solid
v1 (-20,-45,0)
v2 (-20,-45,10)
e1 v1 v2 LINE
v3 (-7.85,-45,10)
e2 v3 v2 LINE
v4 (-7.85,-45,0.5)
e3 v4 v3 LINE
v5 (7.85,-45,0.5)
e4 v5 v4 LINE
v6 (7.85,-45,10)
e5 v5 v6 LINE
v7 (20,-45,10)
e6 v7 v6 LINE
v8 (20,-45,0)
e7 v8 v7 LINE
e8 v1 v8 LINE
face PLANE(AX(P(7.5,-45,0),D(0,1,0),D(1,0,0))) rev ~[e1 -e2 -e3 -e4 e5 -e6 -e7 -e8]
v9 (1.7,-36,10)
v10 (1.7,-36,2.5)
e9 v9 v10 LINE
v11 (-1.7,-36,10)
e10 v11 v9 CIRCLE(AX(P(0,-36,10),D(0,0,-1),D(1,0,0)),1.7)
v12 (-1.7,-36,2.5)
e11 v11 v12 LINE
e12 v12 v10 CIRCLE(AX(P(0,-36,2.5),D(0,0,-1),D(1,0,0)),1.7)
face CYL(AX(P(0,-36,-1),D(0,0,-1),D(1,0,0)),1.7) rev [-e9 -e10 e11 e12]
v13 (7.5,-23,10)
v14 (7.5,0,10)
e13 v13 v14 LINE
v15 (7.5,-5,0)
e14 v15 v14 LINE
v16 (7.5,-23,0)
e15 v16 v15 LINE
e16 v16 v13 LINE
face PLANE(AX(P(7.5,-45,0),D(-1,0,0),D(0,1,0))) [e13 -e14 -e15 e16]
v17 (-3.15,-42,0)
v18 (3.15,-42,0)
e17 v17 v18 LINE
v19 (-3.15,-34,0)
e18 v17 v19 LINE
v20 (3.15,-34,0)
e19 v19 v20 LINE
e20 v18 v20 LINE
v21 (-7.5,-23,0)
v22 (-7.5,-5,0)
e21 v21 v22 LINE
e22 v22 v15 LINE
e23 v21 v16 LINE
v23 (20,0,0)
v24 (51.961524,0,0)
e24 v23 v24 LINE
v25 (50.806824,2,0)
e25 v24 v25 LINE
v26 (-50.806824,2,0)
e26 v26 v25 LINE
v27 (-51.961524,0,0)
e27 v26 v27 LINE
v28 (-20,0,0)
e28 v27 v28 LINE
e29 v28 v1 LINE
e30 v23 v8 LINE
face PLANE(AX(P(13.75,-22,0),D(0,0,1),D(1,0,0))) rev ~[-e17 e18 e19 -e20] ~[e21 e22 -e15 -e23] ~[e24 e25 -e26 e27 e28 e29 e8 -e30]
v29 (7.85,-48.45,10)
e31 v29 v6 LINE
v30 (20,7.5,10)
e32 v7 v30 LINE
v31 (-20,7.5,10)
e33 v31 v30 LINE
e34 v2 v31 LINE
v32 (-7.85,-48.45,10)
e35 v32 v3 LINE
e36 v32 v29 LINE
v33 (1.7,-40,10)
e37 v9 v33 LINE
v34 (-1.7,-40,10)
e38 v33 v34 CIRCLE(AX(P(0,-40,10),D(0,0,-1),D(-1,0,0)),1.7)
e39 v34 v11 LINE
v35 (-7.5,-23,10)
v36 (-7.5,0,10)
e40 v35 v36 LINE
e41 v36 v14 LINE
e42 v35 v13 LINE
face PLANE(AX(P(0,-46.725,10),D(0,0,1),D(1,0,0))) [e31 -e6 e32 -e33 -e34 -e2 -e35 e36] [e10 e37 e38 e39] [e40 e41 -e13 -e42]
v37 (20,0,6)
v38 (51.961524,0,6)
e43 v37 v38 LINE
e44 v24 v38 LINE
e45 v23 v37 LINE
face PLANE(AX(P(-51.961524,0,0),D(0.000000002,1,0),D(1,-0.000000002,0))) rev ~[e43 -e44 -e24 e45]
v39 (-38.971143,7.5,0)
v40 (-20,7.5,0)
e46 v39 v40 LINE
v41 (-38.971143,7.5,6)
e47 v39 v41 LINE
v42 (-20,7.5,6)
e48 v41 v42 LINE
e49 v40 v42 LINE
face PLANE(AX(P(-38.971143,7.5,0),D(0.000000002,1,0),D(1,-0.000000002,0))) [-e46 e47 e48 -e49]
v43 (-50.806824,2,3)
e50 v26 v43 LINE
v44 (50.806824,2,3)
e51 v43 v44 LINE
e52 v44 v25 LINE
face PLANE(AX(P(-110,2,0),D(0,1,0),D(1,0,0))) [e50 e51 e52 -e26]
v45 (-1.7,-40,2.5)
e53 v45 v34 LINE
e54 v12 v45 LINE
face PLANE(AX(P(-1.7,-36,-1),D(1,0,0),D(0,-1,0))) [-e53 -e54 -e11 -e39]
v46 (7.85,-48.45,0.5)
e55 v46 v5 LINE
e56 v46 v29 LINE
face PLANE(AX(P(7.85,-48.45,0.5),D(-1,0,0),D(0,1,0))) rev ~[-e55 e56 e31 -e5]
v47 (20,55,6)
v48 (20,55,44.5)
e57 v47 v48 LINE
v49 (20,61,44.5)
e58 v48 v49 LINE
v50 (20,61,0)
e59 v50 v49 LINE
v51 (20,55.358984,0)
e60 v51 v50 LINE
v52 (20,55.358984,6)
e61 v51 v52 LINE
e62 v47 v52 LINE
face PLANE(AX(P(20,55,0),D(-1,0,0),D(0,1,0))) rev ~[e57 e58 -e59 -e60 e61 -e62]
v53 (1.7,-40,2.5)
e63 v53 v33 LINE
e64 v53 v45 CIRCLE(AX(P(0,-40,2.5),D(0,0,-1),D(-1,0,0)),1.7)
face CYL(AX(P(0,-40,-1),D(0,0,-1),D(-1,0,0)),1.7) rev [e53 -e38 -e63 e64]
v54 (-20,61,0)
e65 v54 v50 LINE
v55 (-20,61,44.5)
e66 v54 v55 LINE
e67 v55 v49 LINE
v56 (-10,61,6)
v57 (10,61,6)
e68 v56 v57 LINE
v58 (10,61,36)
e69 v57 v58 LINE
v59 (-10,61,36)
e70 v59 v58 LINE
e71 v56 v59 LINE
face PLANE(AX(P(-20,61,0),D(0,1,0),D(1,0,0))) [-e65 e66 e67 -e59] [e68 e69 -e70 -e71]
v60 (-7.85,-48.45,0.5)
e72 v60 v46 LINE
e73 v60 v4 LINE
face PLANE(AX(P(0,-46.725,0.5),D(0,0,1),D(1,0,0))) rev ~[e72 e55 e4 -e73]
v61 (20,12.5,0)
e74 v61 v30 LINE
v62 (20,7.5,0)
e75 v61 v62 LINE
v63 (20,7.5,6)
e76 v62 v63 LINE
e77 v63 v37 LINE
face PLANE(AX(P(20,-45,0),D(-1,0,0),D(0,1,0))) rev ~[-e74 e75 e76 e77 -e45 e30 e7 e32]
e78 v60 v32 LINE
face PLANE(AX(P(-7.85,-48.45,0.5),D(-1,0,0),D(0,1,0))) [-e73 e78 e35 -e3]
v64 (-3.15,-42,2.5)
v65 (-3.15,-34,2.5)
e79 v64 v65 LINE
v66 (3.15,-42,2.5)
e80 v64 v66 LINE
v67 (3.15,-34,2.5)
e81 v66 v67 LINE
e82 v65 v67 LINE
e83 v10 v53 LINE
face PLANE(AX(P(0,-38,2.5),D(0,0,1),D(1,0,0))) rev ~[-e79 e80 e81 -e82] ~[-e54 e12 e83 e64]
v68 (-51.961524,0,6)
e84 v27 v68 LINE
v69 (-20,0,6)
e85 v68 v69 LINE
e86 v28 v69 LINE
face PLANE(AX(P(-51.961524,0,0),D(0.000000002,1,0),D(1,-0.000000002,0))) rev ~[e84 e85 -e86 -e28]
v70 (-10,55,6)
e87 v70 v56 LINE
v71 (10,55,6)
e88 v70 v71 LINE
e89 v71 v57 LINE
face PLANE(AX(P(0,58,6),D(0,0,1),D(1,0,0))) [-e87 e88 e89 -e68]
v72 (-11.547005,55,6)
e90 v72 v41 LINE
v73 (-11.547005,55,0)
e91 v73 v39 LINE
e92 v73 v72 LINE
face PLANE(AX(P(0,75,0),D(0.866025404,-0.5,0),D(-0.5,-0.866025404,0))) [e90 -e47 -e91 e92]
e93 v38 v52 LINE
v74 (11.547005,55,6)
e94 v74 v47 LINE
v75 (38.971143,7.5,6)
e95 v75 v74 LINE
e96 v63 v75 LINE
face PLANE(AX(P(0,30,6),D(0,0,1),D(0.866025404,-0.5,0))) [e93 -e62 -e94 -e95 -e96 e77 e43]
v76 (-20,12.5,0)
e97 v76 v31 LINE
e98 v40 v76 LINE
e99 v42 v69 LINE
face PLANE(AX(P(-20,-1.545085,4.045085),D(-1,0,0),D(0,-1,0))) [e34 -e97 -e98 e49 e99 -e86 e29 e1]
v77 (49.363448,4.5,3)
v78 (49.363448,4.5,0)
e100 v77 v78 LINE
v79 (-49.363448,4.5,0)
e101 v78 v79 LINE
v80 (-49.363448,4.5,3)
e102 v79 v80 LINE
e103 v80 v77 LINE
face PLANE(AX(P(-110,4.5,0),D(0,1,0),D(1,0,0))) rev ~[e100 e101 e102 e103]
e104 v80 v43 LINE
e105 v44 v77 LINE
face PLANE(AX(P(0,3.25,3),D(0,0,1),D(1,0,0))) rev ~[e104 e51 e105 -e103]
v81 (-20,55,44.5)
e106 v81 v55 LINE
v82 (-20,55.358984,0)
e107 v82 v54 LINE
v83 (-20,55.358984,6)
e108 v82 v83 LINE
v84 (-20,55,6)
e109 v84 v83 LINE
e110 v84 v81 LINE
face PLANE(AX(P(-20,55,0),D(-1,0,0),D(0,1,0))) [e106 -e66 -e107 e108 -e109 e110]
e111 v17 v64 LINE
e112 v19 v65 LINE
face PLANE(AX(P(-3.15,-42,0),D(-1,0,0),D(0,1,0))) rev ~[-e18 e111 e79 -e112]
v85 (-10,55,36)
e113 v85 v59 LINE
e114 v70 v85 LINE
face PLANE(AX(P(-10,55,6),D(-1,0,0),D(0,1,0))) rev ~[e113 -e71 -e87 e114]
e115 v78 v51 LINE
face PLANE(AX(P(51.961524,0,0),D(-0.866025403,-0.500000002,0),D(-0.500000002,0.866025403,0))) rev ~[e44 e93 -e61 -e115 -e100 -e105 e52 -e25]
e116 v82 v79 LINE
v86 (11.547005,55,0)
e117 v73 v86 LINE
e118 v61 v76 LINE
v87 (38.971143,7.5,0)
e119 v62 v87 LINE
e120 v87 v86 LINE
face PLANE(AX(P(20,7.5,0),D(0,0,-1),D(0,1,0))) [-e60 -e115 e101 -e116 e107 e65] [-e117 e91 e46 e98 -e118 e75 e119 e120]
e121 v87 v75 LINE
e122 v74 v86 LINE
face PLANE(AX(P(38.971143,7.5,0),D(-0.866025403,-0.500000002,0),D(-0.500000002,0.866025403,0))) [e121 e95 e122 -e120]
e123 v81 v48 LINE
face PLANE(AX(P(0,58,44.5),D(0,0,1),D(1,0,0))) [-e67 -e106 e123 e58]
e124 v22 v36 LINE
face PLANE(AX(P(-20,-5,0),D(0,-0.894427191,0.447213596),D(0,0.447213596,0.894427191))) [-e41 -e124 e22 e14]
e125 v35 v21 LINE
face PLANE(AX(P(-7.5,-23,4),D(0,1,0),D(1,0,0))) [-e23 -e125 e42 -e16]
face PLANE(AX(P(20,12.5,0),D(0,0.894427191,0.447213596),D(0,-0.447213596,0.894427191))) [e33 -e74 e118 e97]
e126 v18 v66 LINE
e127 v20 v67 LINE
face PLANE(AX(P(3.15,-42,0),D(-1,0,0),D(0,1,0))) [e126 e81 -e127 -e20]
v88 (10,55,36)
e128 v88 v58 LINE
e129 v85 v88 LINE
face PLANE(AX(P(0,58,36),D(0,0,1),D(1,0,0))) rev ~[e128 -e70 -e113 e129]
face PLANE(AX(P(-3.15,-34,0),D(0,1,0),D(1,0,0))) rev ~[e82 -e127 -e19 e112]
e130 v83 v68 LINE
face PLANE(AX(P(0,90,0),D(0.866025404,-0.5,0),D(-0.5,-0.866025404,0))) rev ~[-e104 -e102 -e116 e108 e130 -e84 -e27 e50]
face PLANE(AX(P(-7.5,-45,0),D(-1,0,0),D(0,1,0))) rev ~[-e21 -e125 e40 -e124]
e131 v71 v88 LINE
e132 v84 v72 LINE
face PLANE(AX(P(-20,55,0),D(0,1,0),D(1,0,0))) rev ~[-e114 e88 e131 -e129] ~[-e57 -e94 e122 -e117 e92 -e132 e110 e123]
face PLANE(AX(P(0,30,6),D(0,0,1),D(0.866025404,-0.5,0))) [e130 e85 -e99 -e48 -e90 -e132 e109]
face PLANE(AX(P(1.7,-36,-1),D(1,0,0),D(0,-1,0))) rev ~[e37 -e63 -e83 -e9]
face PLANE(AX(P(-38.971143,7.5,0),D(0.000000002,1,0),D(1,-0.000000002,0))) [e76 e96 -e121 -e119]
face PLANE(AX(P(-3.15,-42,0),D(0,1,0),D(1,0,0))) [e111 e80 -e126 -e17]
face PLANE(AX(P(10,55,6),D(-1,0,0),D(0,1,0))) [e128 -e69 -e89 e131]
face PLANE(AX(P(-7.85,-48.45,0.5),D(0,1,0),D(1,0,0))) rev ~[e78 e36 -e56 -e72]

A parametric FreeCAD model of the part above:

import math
import FreeCAD as App
import Part
import Sketcher
Q = App.Units.Quantity


def add_polygon(sketch, points):
    """Adds a closed chain of lines whose ends are joined by coincident constraints."""
    first, n = sketch.GeometryCount, len(points)
    for a, b in zip(points, points[1:] + points[:1]):
        sketch.addGeometry(Part.LineSegment(App.Vector(*a, 0), App.Vector(*b, 0)), False)
    for i in range(n):
        sketch.addConstraint(Sketcher.Constraint("Coincident", first + i, 2, first + (i + 1) % n, 1))

doc = App.newDocument("Part")
body = doc.addObject("PartDesign::Body", "Body")

# Sketch on XY plane
sketch1 = doc.addObject("Sketcher::SketchObject", "Sketch")
body.addObject(sketch1)
sketch1.AttachmentSupport = (doc.XY_Plane, [""])
sketch1.MapMode = "FlatFace"
add_polygon(sketch1, [(-110, 4.5), (-110, 2), (110, 2), (110, 4.5)])  # lines 0-3
sketch1.addConstraint(Sketcher.Constraint("Vertical", 0))
sketch1.addConstraint(Sketcher.Constraint("Horizontal", 1))
sketch1.addConstraint(Sketcher.Constraint("Vertical", 2))
sketch1.addConstraint(Sketcher.Constraint("Horizontal", 3))
sketch1.addConstraint(Sketcher.Constraint("DistanceX", 1, 1, 1, 2, 220.0))
sketch1.addConstraint(Sketcher.Constraint("DistanceY", 0, 2, 0, 1, 2.5))
sketch1.addConstraint(Sketcher.Constraint("DistanceX", 0, 2, -1, 1, 110.0))
sketch1.addConstraint(Sketcher.Constraint("DistanceY", -1, 1, 0, 2, 2.0))
pad1 = doc.addObject("PartDesign::Pad", "Pad")
body.addObject(pad1)
pad1.Profile = sketch1
pad1.Length = 3
body2 = doc.addObject("PartDesign::Body", "Body001")

# Sketch on XY plane
sketch2 = doc.addObject("Sketcher::SketchObject", "Sketch001")
body2.addObject(sketch2)
sketch2.AttachmentSupport = (doc.getObject("XY_Plane001"), [""])
sketch2.MapMode = "FlatFace"
add_polygon(sketch2, [(-95, 0), (95, 0), (85, 61), (-85, 61)])  # lines 0-3
sketch2.addConstraint(Sketcher.Constraint("Horizontal", 0))
sketch2.addConstraint(Sketcher.Constraint("Horizontal", 2))
sketch2.addConstraint(Sketcher.Constraint("Symmetric", 0, 2, 3, 2, -1, 1))
sketch2.addConstraint(Sketcher.Constraint("Equal", 1, 3))
sketch2.addConstraint(Sketcher.Constraint("DistanceX", 0, 1, 0, 2, 190.0))
sketch2.addConstraint(Sketcher.Constraint("DistanceX", 2, 2, 2, 1, 170.0))
sketch2.addConstraint(Sketcher.Constraint("DistanceY", -1, 1, 1, 2, 61.0))
pad2 = doc.addObject("PartDesign::Pad", "Pad001")
body2.addObject(pad2)
pad2.Profile = sketch2
pad2.Length = 10
body3 = doc.addObject("PartDesign::Body", "Body002")

# Sketch on XY plane
sketch3 = doc.addObject("Sketcher::SketchObject", "Sketch002")
body3.addObject(sketch3)
sketch3.AttachmentSupport = (doc.getObject("XY_Plane002"), [""])
sketch3.MapMode = "FlatFace"
add_polygon(sketch3, [(-110, 98), (-110, -15), (110, -15), (110, 98)])  # lines 0-3
sketch3.addConstraint(Sketcher.Constraint("Vertical", 0))
sketch3.addConstraint(Sketcher.Constraint("Horizontal", 1))
sketch3.addConstraint(Sketcher.Constraint("Vertical", 2))
sketch3.addConstraint(Sketcher.Constraint("Horizontal", 3))
sketch3.addConstraint(Sketcher.Constraint("DistanceX", 1, 1, 1, 2, 220.0))
sketch3.addConstraint(Sketcher.Constraint("DistanceY", 0, 2, 0, 1, 113.0))
sketch3.addConstraint(Sketcher.Constraint("DistanceX", 0, 2, -1, 1, 110.0))
sketch3.addConstraint(Sketcher.Constraint("DistanceY", 0, 2, -1, 1, 15.0))
pad3 = doc.addObject("PartDesign::Pad", "Pad002")
body3.addObject(pad3)
pad3.Profile = sketch3
pad3.Length = 8
doc.recompute()

boolean = doc.addObject("PartDesign::Boolean", "Boolean")
body3.addObject(boolean)
boolean.Type = "Cut"
boolean.addObjects([body2])
body4 = doc.addObject("PartDesign::Body", "Body003")

# Sketch on XY plane
sketch4 = doc.addObject("Sketcher::SketchObject", "Sketch003")
body4.addObject(sketch4)
sketch4.AttachmentSupport = (doc.getObject("XY_Plane003"), [""])
sketch4.MapMode = "FlatFace"
add_polygon(sketch4, [(-16, 61), (-16, 55), (16, 55), (16, 61)])  # lines 0-3
sketch4.addConstraint(Sketcher.Constraint("Vertical", 0))
sketch4.addConstraint(Sketcher.Constraint("Horizontal", 1))
sketch4.addConstraint(Sketcher.Constraint("Vertical", 2))
sketch4.addConstraint(Sketcher.Constraint("Horizontal", 3))
sketch4.addConstraint(Sketcher.Constraint("DistanceX", 1, 1, 1, 2, 32.0))
sketch4.addConstraint(Sketcher.Constraint("DistanceY", 0, 2, 0, 1, 6.0))
sketch4.addConstraint(Sketcher.Constraint("DistanceX", 0, 2, -1, 1, 16.0))
sketch4.addConstraint(Sketcher.Constraint("DistanceY", -1, 1, 0, 2, 55.0))
pad4 = doc.addObject("PartDesign::Pad", "Pad003")
body4.addObject(pad4)
pad4.Profile = sketch4
pad4.Length = 6
body5 = doc.addObject("PartDesign::Body", "Body004")

# Sketch on XY plane
sketch5 = doc.addObject("Sketcher::SketchObject", "Sketch004")
body5.addObject(sketch5)
sketch5.AttachmentSupport = (doc.getObject("XY_Plane004"), [""])
sketch5.MapMode = "FlatFace"
add_polygon(sketch5, [(45, 0), (-22, 39), (-22, -39)])  # lines 0-2
sketch5.addConstraint(Sketcher.Constraint("Vertical", 1))
sketch5.addConstraint(Sketcher.Constraint("PointOnObject", 2, 2, -1))
sketch5.addConstraint(Sketcher.Constraint("Equal", 0, 2))
sketch5.addConstraint(Sketcher.Constraint("Angle", 0, Q("150 deg")))
sketch5.addConstraint(Sketcher.Constraint("DistanceX", -1, 1, 2, 2, 45.0))
sketch5.addConstraint(Sketcher.Constraint("DistanceX", 0, 2, -1, 1, 22.5))
pad5 = doc.addObject("PartDesign::Pad", "Pad004")
body5.addObject(pad5)
pad5.Profile = sketch5
pad5.Length = 6
body6 = doc.addObject("PartDesign::Body", "Body005")
doc.recompute()

body5.Placement = App.Placement(App.Vector(0, 23, 0), App.Rotation(App.Vector(0, 0, -1), 30))
boolean2 = doc.addObject("PartDesign::Boolean", "Boolean001")
body6.addObject(boolean2)
boolean2.Type = "Fuse"
boolean2.addObjects([body5])
body7 = doc.addObject("PartDesign::Body", "Body006")

# Sketch on XY plane
sketch6 = doc.addObject("Sketcher::SketchObject", "Sketch005")
body7.addObject(sketch6)
sketch6.AttachmentSupport = (doc.getObject("XY_Plane006"), [""])
sketch6.MapMode = "FlatFace"
add_polygon(sketch6, [(60, 0), (-30, 52), (-30, -52)])  # lines 0-2
sketch6.addConstraint(Sketcher.Constraint("Vertical", 1))
sketch6.addConstraint(Sketcher.Constraint("PointOnObject", 2, 2, -1))
sketch6.addConstraint(Sketcher.Constraint("Equal", 0, 2))
sketch6.addConstraint(Sketcher.Constraint("Angle", 0, Q("150 deg")))
sketch6.addConstraint(Sketcher.Constraint("DistanceX", 0, 2, -1, 1, 30.0))
sketch6.addConstraint(Sketcher.Constraint("DistanceX", -1, 1, 2, 2, 60.0))
pad6 = doc.addObject("PartDesign::Pad", "Pad005")
body7.addObject(pad6)
pad6.Profile = sketch6
pad6.Length = 6
body8 = doc.addObject("PartDesign::Body", "Body007")
doc.recompute()

body7.Placement = App.Placement(App.Vector(0, 23, 0), App.Rotation(App.Vector(0, 0, -1), 30))
boolean3 = doc.addObject("PartDesign::Boolean", "Boolean002")
body8.addObject(boolean3)
boolean3.Type = "Fuse"
boolean3.addObjects([body7])
doc.recompute()

boolean4 = doc.addObject("PartDesign::Boolean", "Boolean003")
body8.addObject(boolean4)
boolean4.Type = "Cut"
boolean4.addObjects([body6])
body9 = doc.addObject("PartDesign::Body", "Body008")
doc.recompute()

body8.Placement = App.Placement(App.Vector(0, 7, 0), App.Rotation(App.Vector(0, 0, 1), 0))
boolean5 = doc.addObject("PartDesign::Boolean", "Boolean004")
body9.addObject(boolean5)
boolean5.Type = "Fuse"
boolean5.addObjects([body8])
doc.recompute()

boolean6 = doc.addObject("PartDesign::Boolean", "Boolean005")
body9.addObject(boolean6)
boolean6.Type = "Fuse"
boolean6.addObjects([body4])
doc.recompute()

boolean7 = doc.addObject("PartDesign::Boolean", "Boolean006")
body9.addObject(boolean7)
boolean7.Type = "Cut"
boolean7.addObjects([body3])
doc.recompute()

boolean8 = doc.addObject("PartDesign::Boolean", "Boolean007")
body9.addObject(boolean8)
boolean8.Type = "Cut"
boolean8.addObjects([body])
body10 = doc.addObject("PartDesign::Body", "Body009")

# Sketch on XY plane
sketch7 = doc.addObject("Sketcher::SketchObject", "Sketch006")
body10.addObject(sketch7)
sketch7.AttachmentSupport = (doc.getObject("XY_Plane009"), [""])
sketch7.MapMode = "FlatFace"
add_polygon(sketch7, [(-3, -34), (-3, -42), (3, -42), (3, -34)])  # lines 0-3
sketch7.addConstraint(Sketcher.Constraint("Vertical", 0))
sketch7.addConstraint(Sketcher.Constraint("Horizontal", 1))
sketch7.addConstraint(Sketcher.Constraint("Vertical", 2))
sketch7.addConstraint(Sketcher.Constraint("Horizontal", 3))
sketch7.addConstraint(Sketcher.Constraint("DistanceY", 0, 2, 0, 1, 8.0))
sketch7.addConstraint(Sketcher.Constraint("DistanceX", 1, 1, 1, 2, 6.3))
sketch7.addConstraint(Sketcher.Constraint("DistanceY", 0, 2, -1, 1, 42.0))
sketch7.addConstraint(Sketcher.Constraint("DistanceX", 0, 2, -1, 1, 3.15))
pad7 = doc.addObject("PartDesign::Pad", "Pad006")
body10.addObject(pad7)
pad7.Profile = sketch7
pad7.Length = 2.5
body11 = doc.addObject("PartDesign::Body", "Body010")

# Sketch on XY plane
sketch8 = doc.addObject("Sketcher::SketchObject", "Sketch007")
body11.addObject(sketch8)
sketch8.AttachmentSupport = (doc.getObject("XY_Plane010"), [""])
sketch8.MapMode = "FlatFace"
sketch8.AttachmentOffset = App.Placement(App.Vector(0, 0, 10), App.Rotation())
sketch8.addGeometry(Part.ArcOfCircle(Part.Circle(App.Vector(0, -36, 0), App.Vector(0, 0, 1), 1.7), math.radians(0), math.radians(180)), False)
sketch8.addGeometry(Part.LineSegment(App.Vector(-1.7, -36, 0), App.Vector(-1.7, -40, 0)), False)
sketch8.addGeometry(Part.ArcOfCircle(Part.Circle(App.Vector(0, -40, 0), App.Vector(0, 0, 1), 1.7), math.radians(180), math.radians(360)), False)
sketch8.addGeometry(Part.LineSegment(App.Vector(1.7, -40, 0), App.Vector(1.7, -36, 0)), False)
sketch8.addConstraint(Sketcher.Constraint("Tangent", 0, 2, 1, 1))
sketch8.addConstraint(Sketcher.Constraint("Tangent", 1, 2, 2, 1))
sketch8.addConstraint(Sketcher.Constraint("Tangent", 2, 2, 3, 1))
sketch8.addConstraint(Sketcher.Constraint("Tangent", 3, 2, 0, 1))
sketch8.addConstraint(Sketcher.Constraint("Vertical", 1))
sketch8.addConstraint(Sketcher.Constraint("Vertical", 3))
sketch8.addConstraint(Sketcher.Constraint("PointOnObject", 0, 3, -2))
sketch8.addConstraint(Sketcher.Constraint("Radius", 0, 1.7))
sketch8.addConstraint(Sketcher.Constraint("DistanceY", 1, 2, 1, 1, 4.0))
sketch8.addConstraint(Sketcher.Constraint("DistanceY", 0, 3, -1, 1, 36.0))
pad8 = doc.addObject("PartDesign::Pad", "Pad007")
body11.addObject(pad8)
pad8.Profile = sketch8
pad8.Length = 12
body12 = doc.addObject("PartDesign::Body", "Body011")
doc.recompute()

body11.Placement = App.Placement(App.Vector(0, 0, -11), App.Rotation(App.Vector(0, 0, 1), 0))
boolean9 = doc.addObject("PartDesign::Boolean", "Boolean008")
body12.addObject(boolean9)
boolean9.Type = "Fuse"
boolean9.addObjects([body11])
body13 = doc.addObject("PartDesign::Body", "Body012")

# Sketch on XY plane
sketch9 = doc.addObject("Sketcher::SketchObject", "Sketch008")
body13.addObject(sketch9)
sketch9.AttachmentSupport = (doc.getObject("XY_Plane012"), [""])
sketch9.MapMode = "FlatFace"
sketch9.AttachmentOffset = App.Placement(App.Vector(0, 0, 0.5), App.Rotation())
add_polygon(sketch9, [(-7.8, -45), (-7.8, -48.5), (7.8, -48.5), (7.8, -45)])  # lines 0-3
sketch9.addConstraint(Sketcher.Constraint("Vertical", 0))
sketch9.addConstraint(Sketcher.Constraint("Horizontal", 1))
sketch9.addConstraint(Sketcher.Constraint("Vertical", 2))
sketch9.addConstraint(Sketcher.Constraint("Horizontal", 3))
sketch9.addConstraint(Sketcher.Constraint("DistanceX", 1, 1, 1, 2, 15.7))
sketch9.addConstraint(Sketcher.Constraint("DistanceY", 2, 2, -1, 1, 45.0))
sketch9.addConstraint(Sketcher.Constraint("DistanceY", 0, 2, 0, 1, 3.45))
sketch9.addConstraint(Sketcher.Constraint("DistanceX", 0, 2, -1, 1, 7.85))
pad9 = doc.addObject("PartDesign::Pad", "Pad008")
body13.addObject(pad9)
pad9.Profile = sketch9
pad9.Length = 9.5
body14 = doc.addObject("PartDesign::Body", "Body013")

# Sketch on XY plane
sketch10 = doc.addObject("Sketcher::SketchObject", "Sketch009")
body14.addObject(sketch10)
sketch10.AttachmentSupport = (doc.getObject("XY_Plane013"), [""])
sketch10.MapMode = "FlatFace"
add_polygon(sketch10, [(-8, -23), (-8, -45), (8, -45), (8, -23)])  # lines 0-3
sketch10.addConstraint(Sketcher.Constraint("Vertical", 0))
sketch10.addConstraint(Sketcher.Constraint("Horizontal", 1))
sketch10.addConstraint(Sketcher.Constraint("Vertical", 2))
sketch10.addConstraint(Sketcher.Constraint("Horizontal", 3))
sketch10.addConstraint(Sketcher.Constraint("DistanceX", 1, 1, 1, 2, 15.0))
sketch10.addConstraint(Sketcher.Constraint("DistanceY", 0, 2, 0, 1, 22.0))
sketch10.addConstraint(Sketcher.Constraint("DistanceY", 0, 2, -1, 1, 45.0))
sketch10.addConstraint(Sketcher.Constraint("DistanceX", 0, 2, -1, 1, 7.5))
pad10 = doc.addObject("PartDesign::Pad", "Pad009")
body14.addObject(pad10)
pad10.Profile = sketch10
pad10.Length = 10
doc.recompute()

boolean10 = doc.addObject("PartDesign::Boolean", "Boolean009")
body14.addObject(boolean10)
boolean10.Type = "Fuse"
boolean10.addObjects([body13])
doc.recompute()

boolean11 = doc.addObject("PartDesign::Boolean", "Boolean010")
body14.addObject(boolean11)
boolean11.Type = "Cut"
boolean11.addObjects([body12])
doc.recompute()

boolean12 = doc.addObject("PartDesign::Boolean", "Boolean011")
body14.addObject(boolean12)
boolean12.Type = "Cut"
boolean12.addObjects([body10])
body15 = doc.addObject("PartDesign::Body", "Body014")

# Sketch on XY plane
sketch11 = doc.addObject("Sketcher::SketchObject", "Sketch010")
body15.addObject(sketch11)
sketch11.AttachmentSupport = (doc.getObject("XY_Plane014"), [""])
sketch11.MapMode = "FlatFace"
sketch11.AttachmentOffset = App.Placement(App.Vector(0, 0, 10), App.Rotation())
sketch11.addGeometry(Part.ArcOfCircle(Part.Circle(App.Vector(0, -36, 0), App.Vector(0, 0, 1), 1.7), math.radians(0), math.radians(180)), False)
sketch11.addGeometry(Part.LineSegment(App.Vector(-1.7, -36, 0), App.Vector(-1.7, -40, 0)), False)
sketch11.addGeometry(Part.ArcOfCircle(Part.Circle(App.Vector(0, -40, 0), App.Vector(0, 0, 1), 1.7), math.radians(180), math.radians(360)), False)
sketch11.addGeometry(Part.LineSegment(App.Vector(1.7, -40, 0), App.Vector(1.7, -36, 0)), False)
sketch11.addConstraint(Sketcher.Constraint("Tangent", 0, 2, 1, 1))
sketch11.addConstraint(Sketcher.Constraint("Tangent", 1, 2, 2, 1))
sketch11.addConstraint(Sketcher.Constraint("Tangent", 2, 2, 3, 1))
sketch11.addConstraint(Sketcher.Constraint("Tangent", 3, 2, 0, 1))
sketch11.addConstraint(Sketcher.Constraint("Vertical", 1))
sketch11.addConstraint(Sketcher.Constraint("Vertical", 3))
sketch11.addConstraint(Sketcher.Constraint("PointOnObject", 0, 3, -2))
sketch11.addConstraint(Sketcher.Constraint("Radius", 0, 1.7))
sketch11.addConstraint(Sketcher.Constraint("DistanceY", 1, 2, 1, 1, 4.0))
sketch11.addConstraint(Sketcher.Constraint("DistanceY", 0, 3, -1, 1, 36.0))
pad11 = doc.addObject("PartDesign::Pad", "Pad010")
body15.addObject(pad11)
pad11.Profile = sketch11
pad11.Length = 12
body16 = doc.addObject("PartDesign::Body", "Body015")
doc.recompute()

body15.Placement = App.Placement(App.Vector(0, 0, -11), App.Rotation(App.Vector(0, 0, 1), 0))
boolean13 = doc.addObject("PartDesign::Boolean", "Boolean012")
body16.addObject(boolean13)
boolean13.Type = "Fuse"
boolean13.addObjects([body15])
body17 = doc.addObject("PartDesign::Body", "Body016")

# Sketch on XY plane
sketch12 = doc.addObject("Sketcher::SketchObject", "Sketch011")
body17.addObject(sketch12)
sketch12.AttachmentSupport = (doc.getObject("XY_Plane016"), [""])
sketch12.MapMode = "FlatFace"
add_polygon(sketch12, [(-20, 1), (-20, -45), (-8, -45), (-8, 1)])  # lines 0-3
sketch12.addConstraint(Sketcher.Constraint("Vertical", 0))
sketch12.addConstraint(Sketcher.Constraint("Horizontal", 1))
sketch12.addConstraint(Sketcher.Constraint("Vertical", 2))
sketch12.addConstraint(Sketcher.Constraint("Horizontal", 3))
sketch12.addConstraint(Sketcher.Constraint("DistanceY", 0, 2, 0, 1, 46.0))
sketch12.addConstraint(Sketcher.Constraint("DistanceX", 1, 1, 1, 2, 12.5))
sketch12.addConstraint(Sketcher.Constraint("DistanceX", 0, 2, -1, 1, 20.0))
sketch12.addConstraint(Sketcher.Constraint("DistanceY", 0, 2, -1, 1, 45.0))
pad12 = doc.addObject("PartDesign::Pad", "Pad011")
body17.addObject(pad12)
pad12.Profile = sketch12
pad12.Length = 10
body18 = doc.addObject("PartDesign::Body", "Body017")

# Sketch on XY plane
sketch13 = doc.addObject("Sketcher::SketchObject", "Sketch012")
body18.addObject(sketch13)
sketch13.AttachmentSupport = (doc.getObject("XY_Plane017"), [""])
sketch13.MapMode = "FlatFace"
add_polygon(sketch13, [(-110, 4.5), (-110, 2), (110, 2), (110, 4.5)])  # lines 0-3
sketch13.addConstraint(Sketcher.Constraint("Vertical", 0))
sketch13.addConstraint(Sketcher.Constraint("Horizontal", 1))
sketch13.addConstraint(Sketcher.Constraint("Vertical", 2))
sketch13.addConstraint(Sketcher.Constraint("Horizontal", 3))
sketch13.addConstraint(Sketcher.Constraint("DistanceX", 1, 1, 1, 2, 220.0))
sketch13.addConstraint(Sketcher.Constraint("DistanceY", 0, 2, 0, 1, 2.5))
sketch13.addConstraint(Sketcher.Constraint("DistanceX", 0, 2, -1, 1, 110.0))
sketch13.addConstraint(Sketcher.Constraint("DistanceY", -1, 1, 0, 2, 2.0))
pad13 = doc.addObject("PartDesign::Pad", "Pad012")
body18.addObject(pad13)
pad13.Profile = sketch13
pad13.Length = 3
body19 = doc.addObject("PartDesign::Body", "Body018")

# Sketch on XY plane
sketch14 = doc.addObject("Sketcher::SketchObject", "Sketch013")
body19.addObject(sketch14)
sketch14.AttachmentSupport = (doc.getObject("XY_Plane018"), [""])
sketch14.MapMode = "FlatFace"
add_polygon(sketch14, [(-14, 8), (-14, 0), (16, 0), (16, 8)])  # lines 0-3
sketch14.addConstraint(Sketcher.Constraint("Vertical", 0))
sketch14.addConstraint(Sketcher.Constraint("Horizontal", 1))
sketch14.addConstraint(Sketcher.Constraint("Vertical", 2))
sketch14.addConstraint(Sketcher.Constraint("Horizontal", 3))
sketch14.addConstraint(Sketcher.Constraint("PointOnObject", 0, 2, -1))
sketch14.addConstraint(Sketcher.Constraint("DistanceX", 1, 1, 1, 2, 30.0))
sketch14.addConstraint(Sketcher.Constraint("DistanceY", 0, 2, 0, 1, 7.5))
sketch14.addConstraint(Sketcher.Constraint("DistanceX", 0, 2, -1, 1, 14.0))
pad14 = doc.addObject("PartDesign::Pad", "Pad013")
body19.addObject(pad14)
pad14.Profile = sketch14
pad14.Length = 10
body20 = doc.addObject("PartDesign::Body", "Body019")

# Sketch on XY plane
sketch15 = doc.addObject("Sketcher::SketchObject", "Sketch014")
body20.addObject(sketch15)
sketch15.AttachmentSupport = (doc.getObject("XY_Plane019"), [""])
sketch15.MapMode = "FlatFace"
sketch15.AttachmentOffset = App.Placement(App.Vector(0, 0, -10), App.Rotation())
add_polygon(sketch15, [(-22, 9), (-22, -1), (28, -1), (28, 9)])  # lines 0-3
sketch15.addConstraint(Sketcher.Constraint("Vertical", 0))
sketch15.addConstraint(Sketcher.Constraint("Horizontal", 1))
sketch15.addConstraint(Sketcher.Constraint("Vertical", 2))
sketch15.addConstraint(Sketcher.Constraint("Horizontal", 3))
sketch15.addConstraint(Sketcher.Constraint("DistanceX", 1, 1, 1, 2, 50.0))
sketch15.addConstraint(Sketcher.Constraint("DistanceY", 0, 2, 0, 1, 10.0))
sketch15.addConstraint(Sketcher.Constraint("DistanceX", 0, 2, -1, 1, 22.0))
sketch15.addConstraint(Sketcher.Constraint("DistanceY", 0, 2, -1, 1, 1.0))
pad15 = doc.addObject("PartDesign::Pad", "Pad014")
body20.addObject(pad15)
pad15.Profile = sketch15
pad15.Length = 10
body21 = doc.addObject("PartDesign::Body", "Body020")

# Sketch on XY plane
sketch16 = doc.addObject("Sketcher::SketchObject", "Sketch015")
body21.addObject(sketch16)
sketch16.AttachmentSupport = (doc.getObject("XY_Plane020"), [""])
sketch16.MapMode = "FlatFace"
sketch16.AttachmentOffset = App.Placement(App.Vector(0, 0, 13), App.Rotation())
add_polygon(sketch16, [(8, 8), (8, 0), (20, 0), (20, 8)])  # lines 0-3
sketch16.addConstraint(Sketcher.Constraint("Vertical", 0))
sketch16.addConstraint(Sketcher.Constraint("Horizontal", 1))
sketch16.addConstraint(Sketcher.Constraint("Vertical", 2))
sketch16.addConstraint(Sketcher.Constraint("Horizontal", 3))
sketch16.addConstraint(Sketcher.Constraint("PointOnObject", 0, 2, -1))
sketch16.addConstraint(Sketcher.Constraint("DistanceX", 1, 1, 1, 2, 12.5))
sketch16.addConstraint(Sketcher.Constraint("DistanceY", 0, 2, 0, 1, 7.5))
sketch16.addConstraint(Sketcher.Constraint("DistanceX", -1, 1, 1, 2, 20.0))
pad16 = doc.addObject("PartDesign::Pad", "Pad015")
body21.addObject(pad16)
pad16.Profile = sketch16
pad16.Length = 12
body22 = doc.addObject("PartDesign::Body", "Body021")

# Sketch on XY plane
sketch17 = doc.addObject("Sketcher::SketchObject", "Sketch016")
body22.addObject(sketch17)
sketch17.AttachmentSupport = (doc.getObject("XY_Plane021"), [""])
sketch17.MapMode = "FlatFace"
sketch17.AttachmentOffset = App.Placement(App.Vector(0, 0, 13), App.Rotation())
add_polygon(sketch17, [(-20, 8), (-20, 0), (-8, 0), (-8, 8)])  # lines 0-3
sketch17.addConstraint(Sketcher.Constraint("Vertical", 0))
sketch17.addConstraint(Sketcher.Constraint("Horizontal", 1))
sketch17.addConstraint(Sketcher.Constraint("Vertical", 2))
sketch17.addConstraint(Sketcher.Constraint("Horizontal", 3))
sketch17.addConstraint(Sketcher.Constraint("PointOnObject", 0, 2, -1))
sketch17.addConstraint(Sketcher.Constraint("DistanceX", 1, 1, 1, 2, 12.5))
sketch17.addConstraint(Sketcher.Constraint("DistanceY", 0, 2, 0, 1, 7.5))
sketch17.addConstraint(Sketcher.Constraint("DistanceX", 0, 2, -1, 1, 20.0))
pad17 = doc.addObject("PartDesign::Pad", "Pad016")
body22.addObject(pad17)
pad17.Profile = sketch17
pad17.Length = 12
body23 = doc.addObject("PartDesign::Body", "Body022")

# Sketch on XY plane
sketch18 = doc.addObject("Sketcher::SketchObject", "Sketch017")
body23.addObject(sketch18)
sketch18.AttachmentSupport = (doc.getObject("XY_Plane022"), [""])
sketch18.MapMode = "FlatFace"
sketch18.addGeometry(Part.Circle(App.Vector(0, 7, 0), App.Vector(0, 0, 1), 1.7), False)
sketch18.addConstraint(Sketcher.Constraint("PointOnObject", 0, 3, -2))
sketch18.addConstraint(Sketcher.Constraint("Diameter", 0, 3.4))
sketch18.addConstraint(Sketcher.Constraint("DistanceY", -1, 1, 0, 3, 7.0))
pad18 = doc.addObject("PartDesign::Pad", "Pad017")
body23.addObject(pad18)
pad18.Profile = sketch18
pad18.Length = 30
body24 = doc.addObject("PartDesign::Body", "Body023")

# Sketch on XY plane
sketch19 = doc.addObject("Sketcher::SketchObject", "Sketch018")
body24.addObject(sketch19)
sketch19.AttachmentSupport = (doc.getObject("XY_Plane023"), [""])
sketch19.MapMode = "FlatFace"
sketch19.AttachmentOffset = App.Placement(App.Vector(0, 0, 20), App.Rotation())
add_polygon(sketch19, [(12, 92), (12, 22), (28, 22), (28, 92)])  # lines 0-3
sketch19.addConstraint(Sketcher.Constraint("Vertical", 0))
sketch19.addConstraint(Sketcher.Constraint("Horizontal", 1))
sketch19.addConstraint(Sketcher.Constraint("Vertical", 2))
sketch19.addConstraint(Sketcher.Constraint("Horizontal", 3))
sketch19.addConstraint(Sketcher.Constraint("DistanceX", 1, 1, 1, 2, 15.0))
sketch19.addConstraint(Sketcher.Constraint("DistanceY", 0, 2, 0, 1, 70.0))
sketch19.addConstraint(Sketcher.Constraint("DistanceY", -1, 1, 0, 2, 22.0))
sketch19.addConstraint(Sketcher.Constraint("DistanceX", -1, 1, 0, 2, 12.5))
pad19 = doc.addObject("PartDesign::Pad", "Pad018")
body24.addObject(pad19)
pad19.Profile = sketch19
pad19.Length = 6
body25 = doc.addObject("PartDesign::Body", "Body024")

# Sketch on XY plane
sketch20 = doc.addObject("Sketcher::SketchObject", "Sketch019")
body25.addObject(sketch20)
sketch20.AttachmentSupport = (doc.getObject("XY_Plane024"), [""])
sketch20.MapMode = "FlatFace"
sketch20.AttachmentOffset = App.Placement(App.Vector(0, 0, 20), App.Rotation())
add_polygon(sketch20, [(0, 51), (0, 0), (40, 0), (40, 51)])  # lines 0-3
sketch20.addConstraint(Sketcher.Constraint("Vertical", 0))
sketch20.addConstraint(Sketcher.Constraint("Horizontal", 1))
sketch20.addConstraint(Sketcher.Constraint("Vertical", 2))
sketch20.addConstraint(Sketcher.Constraint("Horizontal", 3))
sketch20.addConstraint(Sketcher.Constraint("Coincident", 0, 2, -1, 1))
sketch20.addConstraint(Sketcher.Constraint("DistanceX", 1, 1, 1, 2, 40.0))
sketch20.addConstraint(Sketcher.Constraint("DistanceY", 0, 2, 0, 1, 51.0))
pad20 = doc.addObject("PartDesign::Pad", "Pad019")
body25.addObject(pad20)
pad20.Profile = sketch20
pad20.Length = 6
doc.recompute()

boolean14 = doc.addObject("PartDesign::Boolean", "Boolean013")
body25.addObject(boolean14)
boolean14.Type = "Cut"
boolean14.addObjects([body24])
body26 = doc.addObject("PartDesign::Body", "Body025")
doc.recompute()

body25.Placement = App.Placement(App.Vector(-20, 0, -1), App.Rotation(App.Vector(0, 0, 1), 0))
boolean15 = doc.addObject("PartDesign::Boolean", "Boolean014")
body26.addObject(boolean15)
boolean15.Type = "Fuse"
boolean15.addObjects([body25])
doc.recompute()

boolean16 = doc.addObject("PartDesign::Boolean", "Boolean015")
body26.addObject(boolean16)
boolean16.Type = "Cut"
boolean16.addObjects([body23])
body27 = doc.addObject("PartDesign::Body", "Body026")
doc.recompute()

body26.Placement = App.Placement(App.Vector(0, -45, 0), App.Rotation(App.Vector(0, 0, 1), 0))
boolean17 = doc.addObject("PartDesign::Boolean", "Boolean016")
body27.addObject(boolean17)
boolean17.Type = "Fuse"
boolean17.addObjects([body26])
doc.recompute()

boolean18 = doc.addObject("PartDesign::Boolean", "Boolean017")
body27.addObject(boolean18)
boolean18.Type = "Fuse"
boolean18.addObjects([body21])
doc.recompute()

boolean19 = doc.addObject("PartDesign::Boolean", "Boolean018")
body27.addObject(boolean19)
boolean19.Type = "Fuse"
boolean19.addObjects([body22])
body28 = doc.addObject("PartDesign::Body", "Body027")
doc.recompute()

body27.Placement = App.Placement(App.Vector(0, 0, -15), App.Rotation(App.Vector(0, 0, 1), 0))
boolean20 = doc.addObject("PartDesign::Boolean", "Boolean019")
body28.addObject(boolean20)
boolean20.Type = "Fuse"
boolean20.addObjects([body27])
doc.recompute()

boolean21 = doc.addObject("PartDesign::Boolean", "Boolean020")
body28.addObject(boolean21)
boolean21.Type = "Cut"
boolean21.addObjects([body20])
doc.recompute()

boolean22 = doc.addObject("PartDesign::Boolean", "Boolean021")
body28.addObject(boolean22)
boolean22.Type = "Fuse"
boolean22.addObjects([body19])
doc.recompute()

boolean23 = doc.addObject("PartDesign::Boolean", "Boolean022")
body28.addObject(boolean23)
boolean23.Type = "Cut"
boolean23.addObjects([body18])
body29 = doc.addObject("PartDesign::Body", "Body028")

# Sketch on YZ plane
sketch21 = doc.addObject("Sketcher::SketchObject", "Sketch020")
body29.addObject(sketch21)
sketch21.AttachmentSupport = (doc.getObject("YZ_Plane028"), [""])
sketch21.MapMode = "FlatFace"
sketch21.AttachmentOffset = App.Placement(App.Vector(0, 0, -20), App.Rotation())
add_polygon(sketch21, [(8, 0), (8, 10), (12, 0)])  # lines 0-2
sketch21.addConstraint(Sketcher.Constraint("Vertical", 0))
sketch21.addConstraint(Sketcher.Constraint("Horizontal", 2))
sketch21.addConstraint(Sketcher.Constraint("PointOnObject", 1, 2, -1))
sketch21.addConstraint(Sketcher.Constraint("DistanceX", 2, 2, 2, 1, 5.0))
sketch21.addConstraint(Sketcher.Constraint("DistanceY", 0, 1, 0, 2, 10.0))
sketch21.addConstraint(Sketcher.Constraint("DistanceX", -1, 1, 0, 2, 7.5))
pad21 = doc.addObject("PartDesign::Pad", "Pad020")
body29.addObject(pad21)
pad21.Profile = sketch21
pad21.Length = 40
pad21.Reversed = True
body30 = doc.addObject("PartDesign::Body", "Body029")
doc.recompute()

body29.Placement = App.Placement(App.Vector(40, 0, 0), App.Rotation(App.Vector(0, 0, 1), 0))
boolean24 = doc.addObject("PartDesign::Boolean", "Boolean023")
body30.addObject(boolean24)
boolean24.Type = "Fuse"
boolean24.addObjects([body29])
body31 = doc.addObject("PartDesign::Body", "Body030")

# Sketch on XY plane
sketch22 = doc.addObject("Sketcher::SketchObject", "Sketch021")
body31.addObject(sketch22)
sketch22.AttachmentSupport = (doc.getObject("XY_Plane030"), [""])
sketch22.MapMode = "FlatFace"
add_polygon(sketch22, [(-20, 1), (-20, -45), (-8, -45), (-8, 1)])  # lines 0-3
sketch22.addConstraint(Sketcher.Constraint("Vertical", 0))
sketch22.addConstraint(Sketcher.Constraint("Horizontal", 1))
sketch22.addConstraint(Sketcher.Constraint("Vertical", 2))
sketch22.addConstraint(Sketcher.Constraint("Horizontal", 3))
sketch22.addConstraint(Sketcher.Constraint("DistanceY", 0, 2, 0, 1, 46.0))
sketch22.addConstraint(Sketcher.Constraint("DistanceX", 1, 1, 1, 2, 12.5))
sketch22.addConstraint(Sketcher.Constraint("DistanceX", 0, 2, -1, 1, 20.0))
sketch22.addConstraint(Sketcher.Constraint("DistanceY", 0, 2, -1, 1, 45.0))
pad22 = doc.addObject("PartDesign::Pad", "Pad021")
body31.addObject(pad22)
pad22.Profile = sketch22
pad22.Length = 10
body32 = doc.addObject("PartDesign::Body", "Body031")

# Sketch on XY plane
sketch23 = doc.addObject("Sketcher::SketchObject", "Sketch022")
body32.addObject(sketch23)
sketch23.AttachmentSupport = (doc.getObject("XY_Plane031"), [""])
sketch23.MapMode = "FlatFace"
add_polygon(sketch23, [(8, 1), (8, -45), (20, -45), (20, 1)])  # lines 0-3
sketch23.addConstraint(Sketcher.Constraint("Vertical", 0))
sketch23.addConstraint(Sketcher.Constraint("Horizontal", 1))
sketch23.addConstraint(Sketcher.Constraint("Vertical", 2))
sketch23.addConstraint(Sketcher.Constraint("Horizontal", 3))
sketch23.addConstraint(Sketcher.Constraint("DistanceY", 0, 2, 0, 1, 46.0))
sketch23.addConstraint(Sketcher.Constraint("DistanceX", 1, 1, 1, 2, 12.5))
sketch23.addConstraint(Sketcher.Constraint("DistanceY", 0, 2, -1, 1, 45.0))
sketch23.addConstraint(Sketcher.Constraint("DistanceX", -1, 1, 1, 2, 20.0))
pad23 = doc.addObject("PartDesign::Pad", "Pad022")
body32.addObject(pad23)
pad23.Profile = sketch23
pad23.Length = 10
body33 = doc.addObject("PartDesign::Body", "Body032")

# Sketch on YZ plane
sketch24 = doc.addObject("Sketcher::SketchObject", "Sketch023")
body33.addObject(sketch24)
sketch24.AttachmentSupport = (doc.getObject("YZ_Plane032"), [""])
sketch24.MapMode = "FlatFace"
sketch24.AttachmentOffset = App.Placement(App.Vector(0, 0, -20), App.Rotation())
add_polygon(sketch24, [(8, 0), (8, 10), (12, 0)])  # lines 0-2
sketch24.addConstraint(Sketcher.Constraint("Vertical", 0))
sketch24.addConstraint(Sketcher.Constraint("Horizontal", 2))
sketch24.addConstraint(Sketcher.Constraint("PointOnObject", 1, 2, -1))
sketch24.addConstraint(Sketcher.Constraint("DistanceX", 2, 2, 2, 1, 5.0))
sketch24.addConstraint(Sketcher.Constraint("DistanceY", 0, 1, 0, 2, 10.0))
sketch24.addConstraint(Sketcher.Constraint("DistanceX", -1, 1, 0, 2, 7.5))
pad24 = doc.addObject("PartDesign::Pad", "Pad023")
body33.addObject(pad24)
pad24.Profile = sketch24
pad24.Length = 40
pad24.Reversed = True
body34 = doc.addObject("PartDesign::Body", "Body033")
doc.recompute()

body33.Placement = App.Placement(App.Vector(-40, 7.5, 0), App.Rotation(App.Vector(0, 0, 1), 180))
boolean25 = doc.addObject("PartDesign::Boolean", "Boolean024")
body34.addObject(boolean25)
boolean25.Type = "Fuse"
boolean25.addObjects([body33])
body35 = doc.addObject("PartDesign::Body", "Body034")

# Sketch on XY plane
sketch25 = doc.addObject("Sketcher::SketchObject", "Sketch024")
body35.addObject(sketch25)
sketch25.AttachmentSupport = (doc.getObject("XY_Plane034"), [""])
sketch25.MapMode = "FlatFace"
add_polygon(sketch25, [(-110, 4.5), (-110, 2), (110, 2), (110, 4.5)])  # lines 0-3
sketch25.addConstraint(Sketcher.Constraint("Vertical", 0))
sketch25.addConstraint(Sketcher.Constraint("Horizontal", 1))
sketch25.addConstraint(Sketcher.Constraint("Vertical", 2))
sketch25.addConstraint(Sketcher.Constraint("Horizontal", 3))
sketch25.addConstraint(Sketcher.Constraint("DistanceX", 1, 1, 1, 2, 220.0))
sketch25.addConstraint(Sketcher.Constraint("DistanceY", 0, 2, 0, 1, 2.5))
sketch25.addConstraint(Sketcher.Constraint("DistanceX", 0, 2, -1, 1, 110.0))
sketch25.addConstraint(Sketcher.Constraint("DistanceY", -1, 1, 0, 2, 2.0))
pad25 = doc.addObject("PartDesign::Pad", "Pad024")
body35.addObject(pad25)
pad25.Profile = sketch25
pad25.Length = 3
body36 = doc.addObject("PartDesign::Body", "Body035")

# Sketch on XY plane
sketch26 = doc.addObject("Sketcher::SketchObject", "Sketch025")
body36.addObject(sketch26)
sketch26.AttachmentSupport = (doc.getObject("XY_Plane035"), [""])
sketch26.MapMode = "FlatFace"
add_polygon(sketch26, [(-14, 8), (-14, 0), (16, 0), (16, 8)])  # lines 0-3
sketch26.addConstraint(Sketcher.Constraint("Vertical", 0))
sketch26.addConstraint(Sketcher.Constraint("Horizontal", 1))
sketch26.addConstraint(Sketcher.Constraint("Vertical", 2))
sketch26.addConstraint(Sketcher.Constraint("Horizontal", 3))
sketch26.addConstraint(Sketcher.Constraint("PointOnObject", 0, 2, -1))
sketch26.addConstraint(Sketcher.Constraint("DistanceX", 1, 1, 1, 2, 30.0))
sketch26.addConstraint(Sketcher.Constraint("DistanceY", 0, 2, 0, 1, 7.5))
sketch26.addConstraint(Sketcher.Constraint("DistanceX", 0, 2, -1, 1, 14.0))
pad26 = doc.addObject("PartDesign::Pad", "Pad025")
body36.addObject(pad26)
pad26.Profile = sketch26
pad26.Length = 10
body37 = doc.addObject("PartDesign::Body", "Body036")

# Sketch on XY plane
sketch27 = doc.addObject("Sketcher::SketchObject", "Sketch026")
body37.addObject(sketch27)
sketch27.AttachmentSupport = (doc.getObject("XY_Plane036"), [""])
sketch27.MapMode = "FlatFace"
sketch27.AttachmentOffset = App.Placement(App.Vector(0, 0, -10), App.Rotation())
add_polygon(sketch27, [(-22, 9), (-22, -1), (28, -1), (28, 9)])  # lines 0-3
sketch27.addConstraint(Sketcher.Constraint("Vertical", 0))
sketch27.addConstraint(Sketcher.Constraint("Horizontal", 1))
sketch27.addConstraint(Sketcher.Constraint("Vertical", 2))
sketch27.addConstraint(Sketcher.Constraint("Horizontal", 3))
sketch27.addConstraint(Sketcher.Constraint("DistanceX", 1, 1, 1, 2, 50.0))
sketch27.addConstraint(Sketcher.Constraint("DistanceY", 0, 2, 0, 1, 10.0))
sketch27.addConstraint(Sketcher.Constraint("DistanceX", 0, 2, -1, 1, 22.0))
sketch27.addConstraint(Sketcher.Constraint("DistanceY", 0, 2, -1, 1, 1.0))
pad27 = doc.addObject("PartDesign::Pad", "Pad026")
body37.addObject(pad27)
pad27.Profile = sketch27
pad27.Length = 10
body38 = doc.addObject("PartDesign::Body", "Body037")

# Sketch on XY plane
sketch28 = doc.addObject("Sketcher::SketchObject", "Sketch027")
body38.addObject(sketch28)
sketch28.AttachmentSupport = (doc.getObject("XY_Plane037"), [""])
sketch28.MapMode = "FlatFace"
sketch28.AttachmentOffset = App.Placement(App.Vector(0, 0, 13), App.Rotation())
add_polygon(sketch28, [(8, 8), (8, 0), (20, 0), (20, 8)])  # lines 0-3
sketch28.addConstraint(Sketcher.Constraint("Vertical", 0))
sketch28.addConstraint(Sketcher.Constraint("Horizontal", 1))
sketch28.addConstraint(Sketcher.Constraint("Vertical", 2))
sketch28.addConstraint(Sketcher.Constraint("Horizontal", 3))
sketch28.addConstraint(Sketcher.Constraint("PointOnObject", 0, 2, -1))
sketch28.addConstraint(Sketcher.Constraint("DistanceX", 1, 1, 1, 2, 12.5))
sketch28.addConstraint(Sketcher.Constraint("DistanceY", 0, 2, 0, 1, 7.5))
sketch28.addConstraint(Sketcher.Constraint("DistanceX", -1, 1, 1, 2, 20.0))
pad28 = doc.addObject("PartDesign::Pad", "Pad027")
body38.addObject(pad28)
pad28.Profile = sketch28
pad28.Length = 12
body39 = doc.addObject("PartDesign::Body", "Body038")

# Sketch on XY plane
sketch29 = doc.addObject("Sketcher::SketchObject", "Sketch028")
body39.addObject(sketch29)
sketch29.AttachmentSupport = (doc.getObject("XY_Plane038"), [""])
sketch29.MapMode = "FlatFace"
sketch29.AttachmentOffset = App.Placement(App.Vector(0, 0, 13), App.Rotation())
add_polygon(sketch29, [(-20, 8), (-20, 0), (-8, 0), (-8, 8)])  # lines 0-3
sketch29.addConstraint(Sketcher.Constraint("Vertical", 0))
sketch29.addConstraint(Sketcher.Constraint("Horizontal", 1))
sketch29.addConstraint(Sketcher.Constraint("Vertical", 2))
sketch29.addConstraint(Sketcher.Constraint("Horizontal", 3))
sketch29.addConstraint(Sketcher.Constraint("PointOnObject", 0, 2, -1))
sketch29.addConstraint(Sketcher.Constraint("DistanceX", 1, 1, 1, 2, 12.5))
sketch29.addConstraint(Sketcher.Constraint("DistanceY", 0, 2, 0, 1, 7.5))
sketch29.addConstraint(Sketcher.Constraint("DistanceX", 0, 2, -1, 1, 20.0))
pad29 = doc.addObject("PartDesign::Pad", "Pad028")
body39.addObject(pad29)
pad29.Profile = sketch29
pad29.Length = 12
body40 = doc.addObject("PartDesign::Body", "Body039")

# Sketch on XY plane
sketch30 = doc.addObject("Sketcher::SketchObject", "Sketch029")
body40.addObject(sketch30)
sketch30.AttachmentSupport = (doc.getObject("XY_Plane039"), [""])
sketch30.MapMode = "FlatFace"
sketch30.addGeometry(Part.Circle(App.Vector(0, 7, 0), App.Vector(0, 0, 1), 1.7), False)
sketch30.addConstraint(Sketcher.Constraint("PointOnObject", 0, 3, -2))
sketch30.addConstraint(Sketcher.Constraint("Diameter", 0, 3.4))
sketch30.addConstraint(Sketcher.Constraint("DistanceY", -1, 1, 0, 3, 7.0))
pad30 = doc.addObject("PartDesign::Pad", "Pad029")
body40.addObject(pad30)
pad30.Profile = sketch30
pad30.Length = 30
body41 = doc.addObject("PartDesign::Body", "Body040")

# Sketch on XY plane
sketch31 = doc.addObject("Sketcher::SketchObject", "Sketch030")
body41.addObject(sketch31)
sketch31.AttachmentSupport = (doc.getObject("XY_Plane040"), [""])
sketch31.MapMode = "FlatFace"
sketch31.AttachmentOffset = App.Placement(App.Vector(0, 0, 20), App.Rotation())
add_polygon(sketch31, [(12, 92), (12, 22), (28, 22), (28, 92)])  # lines 0-3
sketch31.addConstraint(Sketcher.Constraint("Vertical", 0))
sketch31.addConstraint(Sketcher.Constraint("Horizontal", 1))
sketch31.addConstraint(Sketcher.Constraint("Vertical", 2))
sketch31.addConstraint(Sketcher.Constraint("Horizontal", 3))
sketch31.addConstraint(Sketcher.Constraint("DistanceX", 1, 1, 1, 2, 15.0))
sketch31.addConstraint(Sketcher.Constraint("DistanceY", 0, 2, 0, 1, 70.0))
sketch31.addConstraint(Sketcher.Constraint("DistanceY", -1, 1, 0, 2, 22.0))
sketch31.addConstraint(Sketcher.Constraint("DistanceX", -1, 1, 0, 2, 12.5))
pad31 = doc.addObject("PartDesign::Pad", "Pad030")
body41.addObject(pad31)
pad31.Profile = sketch31
pad31.Length = 6
body42 = doc.addObject("PartDesign::Body", "Body041")

# Sketch on XY plane
sketch32 = doc.addObject("Sketcher::SketchObject", "Sketch031")
body42.addObject(sketch32)
sketch32.AttachmentSupport = (doc.getObject("XY_Plane041"), [""])
sketch32.MapMode = "FlatFace"
sketch32.AttachmentOffset = App.Placement(App.Vector(0, 0, 20), App.Rotation())
add_polygon(sketch32, [(0, 51), (0, 0), (40, 0), (40, 51)])  # lines 0-3
sketch32.addConstraint(Sketcher.Constraint("Vertical", 0))
sketch32.addConstraint(Sketcher.Constraint("Horizontal", 1))
sketch32.addConstraint(Sketcher.Constraint("Vertical", 2))
sketch32.addConstraint(Sketcher.Constraint("Horizontal", 3))
sketch32.addConstraint(Sketcher.Constraint("Coincident", 0, 2, -1, 1))
sketch32.addConstraint(Sketcher.Constraint("DistanceX", 1, 1, 1, 2, 40.0))
sketch32.addConstraint(Sketcher.Constraint("DistanceY", 0, 2, 0, 1, 51.0))
pad32 = doc.addObject("PartDesign::Pad", "Pad031")
body42.addObject(pad32)
pad32.Profile = sketch32
pad32.Length = 6
doc.recompute()

boolean26 = doc.addObject("PartDesign::Boolean", "Boolean025")
body42.addObject(boolean26)
boolean26.Type = "Cut"
boolean26.addObjects([body41])
body43 = doc.addObject("PartDesign::Body", "Body042")
doc.recompute()

body42.Placement = App.Placement(App.Vector(-20, 0, -1), App.Rotation(App.Vector(0, 0, 1), 0))
boolean27 = doc.addObject("PartDesign::Boolean", "Boolean026")
body43.addObject(boolean27)
boolean27.Type = "Fuse"
boolean27.addObjects([body42])
doc.recompute()

boolean28 = doc.addObject("PartDesign::Boolean", "Boolean027")
body43.addObject(boolean28)
boolean28.Type = "Cut"
boolean28.addObjects([body40])
body44 = doc.addObject("PartDesign::Body", "Body043")
doc.recompute()

body43.Placement = App.Placement(App.Vector(0, -45, 0), App.Rotation(App.Vector(0, 0, 1), 0))
boolean29 = doc.addObject("PartDesign::Boolean", "Boolean028")
body44.addObject(boolean29)
boolean29.Type = "Fuse"
boolean29.addObjects([body43])
doc.recompute()

boolean30 = doc.addObject("PartDesign::Boolean", "Boolean029")
body44.addObject(boolean30)
boolean30.Type = "Fuse"
boolean30.addObjects([body38])
doc.recompute()

boolean31 = doc.addObject("PartDesign::Boolean", "Boolean030")
body44.addObject(boolean31)
boolean31.Type = "Fuse"
boolean31.addObjects([body39])
body45 = doc.addObject("PartDesign::Body", "Body044")
doc.recompute()

body44.Placement = App.Placement(App.Vector(0, 0, -15), App.Rotation(App.Vector(0, 0, 1), 0))
boolean32 = doc.addObject("PartDesign::Boolean", "Boolean031")
body45.addObject(boolean32)
boolean32.Type = "Fuse"
boolean32.addObjects([body44])
doc.recompute()

boolean33 = doc.addObject("PartDesign::Boolean", "Boolean032")
body45.addObject(boolean33)
boolean33.Type = "Cut"
boolean33.addObjects([body37])
doc.recompute()

boolean34 = doc.addObject("PartDesign::Boolean", "Boolean033")
body45.addObject(boolean34)
boolean34.Type = "Fuse"
boolean34.addObjects([body36])
doc.recompute()

boolean35 = doc.addObject("PartDesign::Boolean", "Boolean034")
body45.addObject(boolean35)
boolean35.Type = "Cut"
boolean35.addObjects([body35])
doc.recompute()

boolean36 = doc.addObject("PartDesign::Boolean", "Boolean035")
body45.addObject(boolean36)
boolean36.Type = "Fuse"
boolean36.addObjects([body17])
doc.recompute()

boolean37 = doc.addObject("PartDesign::Boolean", "Boolean036")
body45.addObject(boolean37)
boolean37.Type = "Fuse"
boolean37.addObjects([body28])
doc.recompute()

boolean38 = doc.addObject("PartDesign::Boolean", "Boolean037")
body45.addObject(boolean38)
boolean38.Type = "Fuse"
boolean38.addObjects([body30])
doc.recompute()

boolean39 = doc.addObject("PartDesign::Boolean", "Boolean038")
body45.addObject(boolean39)
boolean39.Type = "Fuse"
boolean39.addObjects([body31])
doc.recompute()

boolean40 = doc.addObject("PartDesign::Boolean", "Boolean039")
body45.addObject(boolean40)
boolean40.Type = "Fuse"
boolean40.addObjects([body32])
doc.recompute()

boolean41 = doc.addObject("PartDesign::Boolean", "Boolean040")
body45.addObject(boolean41)
boolean41.Type = "Fuse"
boolean41.addObjects([body34])
doc.recompute()

boolean42 = doc.addObject("PartDesign::Boolean", "Boolean041")
body45.addObject(boolean42)
boolean42.Type = "Cut"
boolean42.addObjects([body16])
doc.recompute()

boolean43 = doc.addObject("PartDesign::Boolean", "Boolean042")
body45.addObject(boolean43)
boolean43.Type = "Fuse"
boolean43.addObjects([body14])
body46 = doc.addObject("PartDesign::Body", "Body045")

# Sketch on XY plane
sketch33 = doc.addObject("Sketcher::SketchObject", "Sketch032")
body46.addObject(sketch33)
sketch33.AttachmentSupport = (doc.getObject("XY_Plane045"), [""])
sketch33.MapMode = "FlatFace"
sketch33.AttachmentOffset = App.Placement(App.Vector(0, 0, 6), App.Rotation())
add_polygon(sketch33, [(-10, 61), (-10, 55), (10, 55), (10, 61)])  # lines 0-3
sketch33.addConstraint(Sketcher.Constraint("Vertical", 0))
sketch33.addConstraint(Sketcher.Constraint("Horizontal", 1))
sketch33.addConstraint(Sketcher.Constraint("Vertical", 2))
sketch33.addConstraint(Sketcher.Constraint("Horizontal", 3))
sketch33.addConstraint(Sketcher.Constraint("DistanceX", 1, 1, 1, 2, 20.0))
sketch33.addConstraint(Sketcher.Constraint("DistanceY", 0, 2, 0, 1, 6.0))
sketch33.addConstraint(Sketcher.Constraint("DistanceX", 0, 2, -1, 1, 10.0))
sketch33.addConstraint(Sketcher.Constraint("DistanceY", -1, 1, 0, 2, 55.0))
pad33 = doc.addObject("PartDesign::Pad", "Pad032")
body46.addObject(pad33)
pad33.Profile = sketch33
pad33.Length = 30
body47 = doc.addObject("PartDesign::Body", "Body046")

# Sketch on XY plane
sketch34 = doc.addObject("Sketcher::SketchObject", "Sketch033")
body47.addObject(sketch34)
sketch34.AttachmentSupport = (doc.getObject("XY_Plane046"), [""])
sketch34.MapMode = "FlatFace"
add_polygon(sketch34, [(-20, 61), (-20, 55), (20, 55), (20, 61)])  # lines 0-3
sketch34.addConstraint(Sketcher.Constraint("Vertical", 0))
sketch34.addConstraint(Sketcher.Constraint("Horizontal", 1))
sketch34.addConstraint(Sketcher.Constraint("Vertical", 2))
sketch34.addConstraint(Sketcher.Constraint("Horizontal", 3))
sketch34.addConstraint(Sketcher.Constraint("DistanceX", 1, 1, 1, 2, 40.0))
sketch34.addConstraint(Sketcher.Constraint("DistanceY", 0, 2, 0, 1, 6.0))
sketch34.addConstraint(Sketcher.Constraint("DistanceX", 0, 2, -1, 1, 20.0))
sketch34.addConstraint(Sketcher.Constraint("DistanceY", -1, 1, 0, 2, 55.0))
pad34 = doc.addObject("PartDesign::Pad", "Pad033")
body47.addObject(pad34)
pad34.Profile = sketch34
pad34.Length = 44.5
doc.recompute()

boolean44 = doc.addObject("PartDesign::Boolean", "Boolean043")
body47.addObject(boolean44)
boolean44.Type = "Cut"
boolean44.addObjects([body46])
doc.recompute()

boolean45 = doc.addObject("PartDesign::Boolean", "Boolean044")
body47.addObject(boolean45)
boolean45.Type = "Fuse"
boolean45.addObjects([body9])
doc.recompute()

boolean46 = doc.addObject("PartDesign::Boolean", "Boolean045")
body47.addObject(boolean46)
boolean46.Type = "Fuse"
boolean46.addObjects([body45])

doc.recompute()
